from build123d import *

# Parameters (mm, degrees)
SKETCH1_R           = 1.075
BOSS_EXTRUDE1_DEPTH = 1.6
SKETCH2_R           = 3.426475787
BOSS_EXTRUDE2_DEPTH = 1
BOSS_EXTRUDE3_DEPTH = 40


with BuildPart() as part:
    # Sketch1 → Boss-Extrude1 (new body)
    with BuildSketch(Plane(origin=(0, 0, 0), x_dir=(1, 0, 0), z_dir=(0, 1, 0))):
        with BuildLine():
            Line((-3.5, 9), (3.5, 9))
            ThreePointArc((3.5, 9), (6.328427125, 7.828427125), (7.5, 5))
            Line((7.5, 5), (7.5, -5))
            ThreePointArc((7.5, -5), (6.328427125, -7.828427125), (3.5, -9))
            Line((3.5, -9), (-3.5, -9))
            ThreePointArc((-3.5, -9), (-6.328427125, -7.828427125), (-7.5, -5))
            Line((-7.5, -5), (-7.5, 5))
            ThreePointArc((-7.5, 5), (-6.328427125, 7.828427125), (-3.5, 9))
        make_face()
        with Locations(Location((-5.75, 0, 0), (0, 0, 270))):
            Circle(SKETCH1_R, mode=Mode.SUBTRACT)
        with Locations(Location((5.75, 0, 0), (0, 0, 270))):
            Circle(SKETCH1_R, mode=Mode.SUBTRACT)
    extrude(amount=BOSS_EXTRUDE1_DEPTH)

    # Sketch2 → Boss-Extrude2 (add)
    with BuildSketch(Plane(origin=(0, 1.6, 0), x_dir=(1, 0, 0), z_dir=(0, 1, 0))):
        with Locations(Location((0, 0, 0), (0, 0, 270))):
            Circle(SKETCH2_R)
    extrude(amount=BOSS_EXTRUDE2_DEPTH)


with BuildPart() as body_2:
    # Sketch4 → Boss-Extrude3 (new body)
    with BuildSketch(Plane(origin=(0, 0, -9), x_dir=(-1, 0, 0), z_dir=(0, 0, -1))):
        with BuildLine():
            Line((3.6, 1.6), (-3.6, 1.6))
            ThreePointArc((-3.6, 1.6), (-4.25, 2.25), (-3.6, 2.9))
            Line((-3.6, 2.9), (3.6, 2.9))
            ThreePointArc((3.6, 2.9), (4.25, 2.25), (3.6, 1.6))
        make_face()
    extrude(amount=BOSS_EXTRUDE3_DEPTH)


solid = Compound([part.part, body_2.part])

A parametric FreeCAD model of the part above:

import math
import FreeCAD as App
import Part
import Sketcher
Q = App.Units.Quantity

doc = App.newDocument("Part")
body = doc.addObject("PartDesign::Body", "Body")

# Sketch on XZ plane
sketch1 = body.newObject("Sketcher::SketchObject", "Sketch")
sketch1.AttachmentSupport = (doc.getObject("XZ_Plane"), [""])
sketch1.MapMode = "FlatFace"
sketch1.addGeometry([
    Part.LineSegment(App.Vector(3.5, -9, 0), App.Vector(-3.5, -9, 0)),  # 0
    Part.ArcOfCircle(Part.Circle(App.Vector(-3.5, -5, 0), App.Vector(0, 0, 1), 4), math.radians(180), math.radians(270)),  # 1
    Part.LineSegment(App.Vector(-7.5, -5, 0), App.Vector(-7.5, 5, 0)),  # 2
    Part.ArcOfCircle(Part.Circle(App.Vector(-3.5, 5, 0), App.Vector(0, 0, 1), 4), math.radians(90), math.radians(180)),  # 3
    Part.LineSegment(App.Vector(-3.5, 9, 0), App.Vector(3.5, 9, 0)),  # 4
    Part.ArcOfCircle(Part.Circle(App.Vector(3.5, 5, 0), App.Vector(0, 0, 1), 4), math.radians(0), math.radians(90)),  # 5
    Part.LineSegment(App.Vector(7.5, 5, 0), App.Vector(7.5, -5, 0)),  # 6
    Part.ArcOfCircle(Part.Circle(App.Vector(3.5, -5, 0), App.Vector(0, 0, 1), 4), math.radians(-90), math.radians(0)),  # 7
    Part.Circle(App.Vector(5.8, 0, 0), App.Vector(0, 0, 1), 1.1),  # 8
    Part.Circle(App.Vector(-5.8, 0, 0), App.Vector(0, 0, 1), 1.1),  # 9
], False)
sketch1.addConstraint([
    Sketcher.Constraint("Tangent", 0, 2, 1, 2),
    Sketcher.Constraint("Tangent", 1, 1, 2, 1),
    Sketcher.Constraint("Tangent", 2, 2, 3, 2),
    Sketcher.Constraint("Tangent", 3, 1, 4, 1),
    Sketcher.Constraint("Tangent", 4, 2, 5, 2),
    Sketcher.Constraint("Tangent", 5, 1, 6, 1),
    Sketcher.Constraint("Tangent", 6, 2, 7, 2),
    Sketcher.Constraint("Tangent", 7, 1, 0, 1),
    Sketcher.Constraint("Horizontal", 0),
    Sketcher.Constraint("Vertical", 2),
    Sketcher.Constraint("Horizontal", 4),
    Sketcher.Constraint("Vertical", 6),
    Sketcher.Constraint("Equal", 1, 3),
    Sketcher.Constraint("Equal", 3, 5),
    Sketcher.Constraint("Equal", 5, 7),
    Sketcher.Constraint("Equal", 8, 9),
    Sketcher.Constraint("Symmetric", 1, 3, 5, 3, -1, 1),
    Sketcher.Constraint("Symmetric", 8, 3, 9, 3, -1, 1),
    Sketcher.Constraint("PointOnObject", 8, 3, -1),
    Sketcher.Constraint("Radius", 1, Q("4 mm")),
    Sketcher.Constraint("Diameter", 8, Q("2.15 mm")),
    Sketcher.Constraint("DistanceX", 0, 2, 0, 1, Q("7 mm")),
    Sketcher.Constraint("DistanceY", 2, 1, 2, 2, Q("10 mm")),
    Sketcher.Constraint("DistanceX", 9, 3, 8, 3, Q("11.5 mm")),
])
pad1 = body.newObject("PartDesign::Pad", "Pad")
pad1.Profile = sketch1
pad1.Length = 1.6
pad1.Reversed = True

# Sketch on XZ plane
sketch2 = body.newObject("Sketcher::SketchObject", "Sketch001")
sketch2.AttachmentSupport = (doc.getObject("XZ_Plane"), [""])
sketch2.MapMode = "FlatFace"
sketch2.AttachmentOffset = App.Placement(App.Vector(0, 0, -1.6), App.Rotation())
sketch2.addGeometry(Part.Circle(App.Vector(0, 0, 0), App.Vector(0, 0, 1), 3.4), False)
sketch2.addConstraint([
    Sketcher.Constraint("Coincident", 0, 3, -1, 1),
    Sketcher.Constraint("Diameter", 0, Q("6.852952 mm")),
])
pad2 = body.newObject("PartDesign::Pad", "Pad001")
pad2.Profile = sketch2
pad2.Length = 1
pad2.Reversed = True
body2 = doc.addObject("PartDesign::Body", "Body001")

# Sketch on XY plane
sketch3 = body2.newObject("Sketcher::SketchObject", "Sketch002")
sketch3.AttachmentSupport = (doc.getObject("XY_Plane001"), [""])
sketch3.MapMode = "FlatFace"
sketch3.AttachmentOffset = App.Placement(App.Vector(0, 0, -9), App.Rotation())
sketch3.addGeometry([
    Part.LineSegment(App.Vector(3.6, 1.6, 0), App.Vector(-3.6, 1.6, 0)),
    Part.ArcOfCircle(Part.Circle(App.Vector(-3.6, 2.2, 0), App.Vector(0, 0, 1), 0.7), math.radians(90), math.radians(270)),
    Part.LineSegment(App.Vector(-3.6, 2.9, 0), App.Vector(3.6, 2.9, 0)),
    Part.ArcOfCircle(Part.Circle(App.Vector(3.6, 2.2, 0), App.Vector(0, 0, 1), 0.7), math.radians(-90), math.radians(90)),
], False)
sketch3.addConstraint([
    Sketcher.Constraint("Tangent", 0, 2, 1, 2),
    Sketcher.Constraint("Tangent", 1, 1, 2, 1),
    Sketcher.Constraint("Tangent", 2, 2, 3, 2),
    Sketcher.Constraint("Tangent", 3, 1, 0, 1),
    Sketcher.Constraint("Horizontal", 0),
    Sketcher.Constraint("Horizontal", 2),
    Sketcher.Constraint("Radius", 1, Q("0.65 mm")),
    Sketcher.Constraint("DistanceX", 0, 2, 0, 1, Q("7.2 mm")),
    Sketcher.Constraint("DistanceX", 1, 3, -1, 1, Q("3.6 mm")),
    Sketcher.Constraint("DistanceY", -1, 1, 0, 2, Q("1.6 mm")),
])
pad3 = body2.newObject("PartDesign::Pad", "Pad002")
pad3.Profile = sketch3
pad3.Length = 40
pad3.Reversed = True

doc.recompute()
